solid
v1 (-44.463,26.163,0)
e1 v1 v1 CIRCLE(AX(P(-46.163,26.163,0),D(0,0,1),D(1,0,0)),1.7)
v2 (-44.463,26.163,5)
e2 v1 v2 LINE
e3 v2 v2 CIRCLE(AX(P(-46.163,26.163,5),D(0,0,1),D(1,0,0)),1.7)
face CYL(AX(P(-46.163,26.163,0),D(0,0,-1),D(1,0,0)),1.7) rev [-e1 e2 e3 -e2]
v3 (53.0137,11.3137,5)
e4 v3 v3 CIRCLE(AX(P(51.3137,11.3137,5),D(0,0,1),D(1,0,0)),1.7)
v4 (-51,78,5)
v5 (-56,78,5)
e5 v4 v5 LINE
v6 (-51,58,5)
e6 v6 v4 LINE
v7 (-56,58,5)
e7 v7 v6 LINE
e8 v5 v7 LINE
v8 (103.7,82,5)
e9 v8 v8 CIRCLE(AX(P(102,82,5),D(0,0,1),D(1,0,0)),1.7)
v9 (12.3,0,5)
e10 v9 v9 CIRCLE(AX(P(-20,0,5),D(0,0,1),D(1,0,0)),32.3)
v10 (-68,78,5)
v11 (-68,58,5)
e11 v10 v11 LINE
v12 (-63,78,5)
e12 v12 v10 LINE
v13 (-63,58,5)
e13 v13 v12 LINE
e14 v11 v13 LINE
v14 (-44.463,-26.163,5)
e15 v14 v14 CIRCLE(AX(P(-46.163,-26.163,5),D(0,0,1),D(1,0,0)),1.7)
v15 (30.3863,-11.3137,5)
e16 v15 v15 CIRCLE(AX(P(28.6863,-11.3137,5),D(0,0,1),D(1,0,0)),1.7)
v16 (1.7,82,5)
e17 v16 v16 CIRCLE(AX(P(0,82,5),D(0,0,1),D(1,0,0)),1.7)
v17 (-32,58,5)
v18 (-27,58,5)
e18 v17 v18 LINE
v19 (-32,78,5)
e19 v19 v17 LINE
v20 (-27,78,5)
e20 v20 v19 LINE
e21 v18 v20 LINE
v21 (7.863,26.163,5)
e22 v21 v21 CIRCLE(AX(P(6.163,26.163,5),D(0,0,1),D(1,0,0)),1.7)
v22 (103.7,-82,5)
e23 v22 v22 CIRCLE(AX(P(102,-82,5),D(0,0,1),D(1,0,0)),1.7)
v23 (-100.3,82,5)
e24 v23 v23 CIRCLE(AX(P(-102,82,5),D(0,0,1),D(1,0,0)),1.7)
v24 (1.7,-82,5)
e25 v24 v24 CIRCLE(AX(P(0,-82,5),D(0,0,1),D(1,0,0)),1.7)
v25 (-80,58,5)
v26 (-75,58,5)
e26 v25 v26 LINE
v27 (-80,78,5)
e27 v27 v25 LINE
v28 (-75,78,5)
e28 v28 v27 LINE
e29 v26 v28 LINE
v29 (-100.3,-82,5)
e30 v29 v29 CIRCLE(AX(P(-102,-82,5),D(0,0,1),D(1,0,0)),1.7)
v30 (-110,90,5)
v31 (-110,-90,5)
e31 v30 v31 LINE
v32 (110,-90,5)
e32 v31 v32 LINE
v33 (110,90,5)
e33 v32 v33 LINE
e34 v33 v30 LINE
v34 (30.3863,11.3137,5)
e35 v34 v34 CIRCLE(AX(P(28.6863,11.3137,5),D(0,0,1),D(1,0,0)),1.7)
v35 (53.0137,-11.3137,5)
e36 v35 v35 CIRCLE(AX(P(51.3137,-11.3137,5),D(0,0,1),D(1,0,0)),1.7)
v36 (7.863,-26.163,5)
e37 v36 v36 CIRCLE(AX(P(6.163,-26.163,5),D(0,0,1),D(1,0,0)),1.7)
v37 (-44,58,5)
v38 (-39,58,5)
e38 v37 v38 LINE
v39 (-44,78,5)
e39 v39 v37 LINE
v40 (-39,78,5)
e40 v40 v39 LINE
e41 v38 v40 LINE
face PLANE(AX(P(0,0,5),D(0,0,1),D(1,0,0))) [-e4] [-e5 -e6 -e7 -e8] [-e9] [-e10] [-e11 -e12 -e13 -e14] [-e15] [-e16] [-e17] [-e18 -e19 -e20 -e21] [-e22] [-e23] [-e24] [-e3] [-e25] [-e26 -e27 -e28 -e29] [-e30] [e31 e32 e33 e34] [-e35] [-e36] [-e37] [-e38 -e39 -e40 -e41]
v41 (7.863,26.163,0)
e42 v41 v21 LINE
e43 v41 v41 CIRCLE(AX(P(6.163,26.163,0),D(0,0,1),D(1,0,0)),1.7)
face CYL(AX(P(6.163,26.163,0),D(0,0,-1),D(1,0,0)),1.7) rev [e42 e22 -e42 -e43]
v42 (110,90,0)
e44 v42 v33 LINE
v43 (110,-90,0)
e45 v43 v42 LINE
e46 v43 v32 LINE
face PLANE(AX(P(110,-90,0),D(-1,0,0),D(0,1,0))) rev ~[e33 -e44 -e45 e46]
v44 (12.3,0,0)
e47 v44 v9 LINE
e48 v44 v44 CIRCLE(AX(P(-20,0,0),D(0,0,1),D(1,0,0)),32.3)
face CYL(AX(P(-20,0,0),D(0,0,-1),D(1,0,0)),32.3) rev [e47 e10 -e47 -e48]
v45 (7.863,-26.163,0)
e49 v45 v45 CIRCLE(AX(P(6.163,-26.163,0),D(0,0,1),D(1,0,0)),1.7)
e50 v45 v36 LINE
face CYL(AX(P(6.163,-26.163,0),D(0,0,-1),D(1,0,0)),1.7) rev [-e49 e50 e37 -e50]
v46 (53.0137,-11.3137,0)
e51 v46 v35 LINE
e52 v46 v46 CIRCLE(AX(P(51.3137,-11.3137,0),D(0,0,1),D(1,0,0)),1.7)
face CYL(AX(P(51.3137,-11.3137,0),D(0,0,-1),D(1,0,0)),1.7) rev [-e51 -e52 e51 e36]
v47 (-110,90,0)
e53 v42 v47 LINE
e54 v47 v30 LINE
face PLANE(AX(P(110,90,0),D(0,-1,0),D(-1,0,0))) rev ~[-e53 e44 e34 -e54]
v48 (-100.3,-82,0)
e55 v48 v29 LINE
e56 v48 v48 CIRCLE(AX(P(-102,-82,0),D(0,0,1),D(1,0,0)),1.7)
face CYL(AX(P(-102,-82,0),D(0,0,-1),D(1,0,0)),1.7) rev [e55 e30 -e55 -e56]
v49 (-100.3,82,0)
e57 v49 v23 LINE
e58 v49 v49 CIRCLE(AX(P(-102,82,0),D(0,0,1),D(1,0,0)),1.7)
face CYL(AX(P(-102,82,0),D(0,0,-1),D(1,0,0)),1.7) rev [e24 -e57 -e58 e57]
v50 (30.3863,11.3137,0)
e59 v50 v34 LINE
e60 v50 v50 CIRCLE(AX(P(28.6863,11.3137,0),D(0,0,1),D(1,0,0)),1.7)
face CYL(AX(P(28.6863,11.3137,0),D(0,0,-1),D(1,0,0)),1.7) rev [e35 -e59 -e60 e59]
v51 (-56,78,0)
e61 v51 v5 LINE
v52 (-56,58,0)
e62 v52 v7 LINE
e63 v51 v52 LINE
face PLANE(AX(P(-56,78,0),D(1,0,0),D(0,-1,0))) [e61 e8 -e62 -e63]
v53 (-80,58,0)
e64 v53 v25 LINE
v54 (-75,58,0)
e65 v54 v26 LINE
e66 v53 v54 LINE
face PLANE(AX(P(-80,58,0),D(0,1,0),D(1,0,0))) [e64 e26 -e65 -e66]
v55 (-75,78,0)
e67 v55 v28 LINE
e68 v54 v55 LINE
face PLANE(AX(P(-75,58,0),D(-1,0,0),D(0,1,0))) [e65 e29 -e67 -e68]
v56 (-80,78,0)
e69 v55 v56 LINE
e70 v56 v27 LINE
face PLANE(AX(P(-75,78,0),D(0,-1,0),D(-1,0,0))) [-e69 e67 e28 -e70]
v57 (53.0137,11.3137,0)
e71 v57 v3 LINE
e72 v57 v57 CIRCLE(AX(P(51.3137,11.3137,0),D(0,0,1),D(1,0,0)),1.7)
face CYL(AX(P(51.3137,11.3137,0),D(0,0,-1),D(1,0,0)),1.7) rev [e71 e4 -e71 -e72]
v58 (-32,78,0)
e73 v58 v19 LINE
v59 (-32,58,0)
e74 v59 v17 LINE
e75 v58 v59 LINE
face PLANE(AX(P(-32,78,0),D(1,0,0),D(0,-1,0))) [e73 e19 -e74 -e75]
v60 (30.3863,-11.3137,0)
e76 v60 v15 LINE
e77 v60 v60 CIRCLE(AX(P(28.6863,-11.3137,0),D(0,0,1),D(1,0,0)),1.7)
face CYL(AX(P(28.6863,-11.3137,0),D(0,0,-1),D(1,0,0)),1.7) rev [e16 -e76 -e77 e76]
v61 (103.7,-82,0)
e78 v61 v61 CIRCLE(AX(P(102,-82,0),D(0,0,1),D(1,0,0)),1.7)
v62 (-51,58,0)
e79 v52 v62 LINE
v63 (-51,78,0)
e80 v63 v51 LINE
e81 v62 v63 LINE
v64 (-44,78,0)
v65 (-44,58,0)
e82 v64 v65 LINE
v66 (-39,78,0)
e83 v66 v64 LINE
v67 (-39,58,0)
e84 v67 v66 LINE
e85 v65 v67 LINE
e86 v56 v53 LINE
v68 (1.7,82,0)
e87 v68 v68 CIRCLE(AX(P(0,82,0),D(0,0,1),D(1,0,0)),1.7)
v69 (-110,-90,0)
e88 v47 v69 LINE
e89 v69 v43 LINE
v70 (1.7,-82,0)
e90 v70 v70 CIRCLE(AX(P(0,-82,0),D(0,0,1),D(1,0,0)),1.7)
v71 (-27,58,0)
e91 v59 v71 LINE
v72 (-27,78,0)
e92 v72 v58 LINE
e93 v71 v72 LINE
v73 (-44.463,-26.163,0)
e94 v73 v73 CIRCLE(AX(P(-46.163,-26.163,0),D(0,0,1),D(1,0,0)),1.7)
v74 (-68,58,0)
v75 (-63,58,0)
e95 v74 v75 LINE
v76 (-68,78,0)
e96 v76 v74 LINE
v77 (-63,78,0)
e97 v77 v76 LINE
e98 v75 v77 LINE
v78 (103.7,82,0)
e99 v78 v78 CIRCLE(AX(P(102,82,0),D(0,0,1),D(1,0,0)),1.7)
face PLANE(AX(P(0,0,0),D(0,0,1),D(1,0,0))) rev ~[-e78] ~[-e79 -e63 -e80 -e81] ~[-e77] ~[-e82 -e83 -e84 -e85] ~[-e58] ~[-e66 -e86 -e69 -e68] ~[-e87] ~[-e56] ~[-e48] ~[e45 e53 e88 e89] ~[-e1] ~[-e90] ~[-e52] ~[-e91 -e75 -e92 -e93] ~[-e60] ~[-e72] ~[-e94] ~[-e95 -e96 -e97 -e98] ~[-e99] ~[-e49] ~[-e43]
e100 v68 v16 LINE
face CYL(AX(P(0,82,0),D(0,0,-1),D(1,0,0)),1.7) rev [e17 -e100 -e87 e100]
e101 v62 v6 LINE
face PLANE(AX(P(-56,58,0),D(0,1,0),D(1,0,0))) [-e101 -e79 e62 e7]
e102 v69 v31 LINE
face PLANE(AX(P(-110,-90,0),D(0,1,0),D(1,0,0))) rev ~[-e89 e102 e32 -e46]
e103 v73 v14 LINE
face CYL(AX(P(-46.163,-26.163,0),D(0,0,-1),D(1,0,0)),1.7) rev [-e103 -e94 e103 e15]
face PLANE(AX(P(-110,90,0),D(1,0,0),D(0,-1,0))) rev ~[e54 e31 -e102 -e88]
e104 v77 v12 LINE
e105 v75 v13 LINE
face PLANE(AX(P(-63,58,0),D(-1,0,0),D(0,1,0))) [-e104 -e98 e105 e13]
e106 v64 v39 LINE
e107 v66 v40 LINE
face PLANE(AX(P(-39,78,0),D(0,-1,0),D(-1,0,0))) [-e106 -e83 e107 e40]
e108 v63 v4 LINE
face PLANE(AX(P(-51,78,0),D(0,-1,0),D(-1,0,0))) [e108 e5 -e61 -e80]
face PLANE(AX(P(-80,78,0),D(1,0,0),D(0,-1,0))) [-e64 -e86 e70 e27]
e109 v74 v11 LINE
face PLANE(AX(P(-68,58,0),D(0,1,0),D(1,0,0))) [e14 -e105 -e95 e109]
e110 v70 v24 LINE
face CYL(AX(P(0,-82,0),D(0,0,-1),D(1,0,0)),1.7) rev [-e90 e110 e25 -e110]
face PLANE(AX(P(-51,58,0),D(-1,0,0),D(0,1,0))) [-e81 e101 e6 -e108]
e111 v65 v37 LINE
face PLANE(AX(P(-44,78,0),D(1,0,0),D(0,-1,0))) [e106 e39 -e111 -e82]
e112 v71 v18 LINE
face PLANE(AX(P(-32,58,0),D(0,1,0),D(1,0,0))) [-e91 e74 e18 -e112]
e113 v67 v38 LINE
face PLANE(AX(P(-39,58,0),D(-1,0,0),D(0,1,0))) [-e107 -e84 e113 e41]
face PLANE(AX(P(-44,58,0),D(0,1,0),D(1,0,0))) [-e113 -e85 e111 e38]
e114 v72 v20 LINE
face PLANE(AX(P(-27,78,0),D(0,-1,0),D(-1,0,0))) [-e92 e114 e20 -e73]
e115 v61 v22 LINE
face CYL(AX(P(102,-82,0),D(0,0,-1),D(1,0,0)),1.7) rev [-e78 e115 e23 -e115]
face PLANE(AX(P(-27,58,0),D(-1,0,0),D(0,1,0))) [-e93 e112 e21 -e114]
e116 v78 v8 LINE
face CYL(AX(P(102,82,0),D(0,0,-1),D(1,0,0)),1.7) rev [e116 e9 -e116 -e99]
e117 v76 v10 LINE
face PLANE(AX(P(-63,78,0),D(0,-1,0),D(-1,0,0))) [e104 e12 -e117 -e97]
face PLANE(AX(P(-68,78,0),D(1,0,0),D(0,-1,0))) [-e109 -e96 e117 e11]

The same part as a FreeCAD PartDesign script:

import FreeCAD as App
import Part
import Sketcher
from FreeCAD import Vector
Q = App.Units.Quantity


def add_polygon(sketch, points):
    """Adds a closed chain of lines whose ends are joined by coincident constraints."""
    first, n = sketch.GeometryCount, len(points)
    for a, b in zip(points, points[1:] + points[:1]):
        sketch.addGeometry(Part.LineSegment(App.Vector(*a, 0), App.Vector(*b, 0)), False)
    for i in range(n):
        sketch.addConstraint(Sketcher.Constraint("Coincident", first + i, 2, first + (i + 1) % n, 1))

doc = App.newDocument("Part")
body = doc.addObject("PartDesign::Body", "Body")

sketch1 = doc.addObject("Sketcher::SketchObject", "Sketch")
body.addObject(sketch1)
sketch1.AttachmentSupport = (doc.XY_Plane, [""])
sketch1.MapMode = "FlatFace"
add_polygon(sketch1, [(-110, 90), (-110, -90), (110, -90), (110, 90)])
sketch1.addGeometry(Part.Circle(Vector(-102, -82, 0), Vector(0, 0, 1), 1.7), False)
sketch1.addGeometry(Part.Circle(Vector(-46.163, -26.163, 0), Vector(0, 0, 1), 1.7), False)
sketch1.addGeometry(Part.Circle(Vector(0, -82, 0), Vector(0, 0, 1), 1.7), False)
sketch1.addGeometry(Part.Circle(Vector(102, -82, 0), Vector(0, 0, 1), 1.7), False)
sketch1.addGeometry(Part.Circle(Vector(6.163, -26.163, 0), Vector(0, 0, 1), 1.7), False)
sketch1.addGeometry(Part.Circle(Vector(28.6863, -11.3137, 0), Vector(0, 0, 1), 1.7), False)
sketch1.addGeometry(Part.Circle(Vector(51.3137, -11.3137, 0), Vector(0, 0, 1), 1.7), False)
sketch1.addGeometry(Part.Circle(Vector(-20, 0, 0), Vector(0, 0, 1), 32.3), False)
sketch1.addGeometry(Part.Circle(Vector(-46.163, 26.163, 0), Vector(0, 0, 1), 1.7), False)
sketch1.addGeometry(Part.Circle(Vector(-102, 82, 0), Vector(0, 0, 1), 1.7), False)
add_polygon(sketch1, [(-75, 58), (-80, 58), (-80, 78), (-75, 78)])
add_polygon(sketch1, [(-63, 58), (-68, 58), (-68, 78), (-63, 78)])
add_polygon(sketch1, [(-51, 58), (-56, 58), (-56, 78), (-51, 78)])
add_polygon(sketch1, [(-39, 58), (-44, 58), (-44, 78), (-39, 78)])
add_polygon(sketch1, [(-27, 58), (-32, 58), (-32, 78), (-27, 78)])
sketch1.addGeometry(Part.Circle(Vector(28.6863, 11.3137, 0), Vector(0, 0, 1), 1.7), False)
sketch1.addGeometry(Part.Circle(Vector(51.3137, 11.3137, 0), Vector(0, 0, 1), 1.7), False)
sketch1.addGeometry(Part.Circle(Vector(6.163, 26.163, 0), Vector(0, 0, 1), 1.7), False)
sketch1.addGeometry(Part.Circle(Vector(0, 82, 0), Vector(0, 0, 1), 1.7), False)
sketch1.addGeometry(Part.Circle(Vector(102, 82, 0), Vector(0, 0, 1), 1.7), False)
sketch1.addConstraint([
    Sketcher.Constraint("Vertical", 0),
    Sketcher.Constraint("Horizontal", 1),
    Sketcher.Constraint("Vertical", 2),
    Sketcher.Constraint("Horizontal", 3),
    Sketcher.Constraint("Horizontal", 14),
    Sketcher.Constraint("Vertical", 15),
    Sketcher.Constraint("Horizontal", 16),
    Sketcher.Constraint("Vertical", 17),
    Sketcher.Constraint("Horizontal", 18),
    Sketcher.Constraint("Vertical", 19),
    Sketcher.Constraint("Horizontal", 20),
    Sketcher.Constraint("Vertical", 21),
    Sketcher.Constraint("Horizontal", 22),
    Sketcher.Constraint("Vertical", 23),
    Sketcher.Constraint("Horizontal", 24),
    Sketcher.Constraint("Vertical", 25),
    Sketcher.Constraint("Horizontal", 26),
    Sketcher.Constraint("Vertical", 27),
    Sketcher.Constraint("Horizontal", 28),
    Sketcher.Constraint("Vertical", 29),
    Sketcher.Constraint("Horizontal", 30),
    Sketcher.Constraint("Vertical", 31),
    Sketcher.Constraint("Horizontal", 32),
    Sketcher.Constraint("Vertical", 33),
    Sketcher.Constraint("Equal", 4, 5),
    Sketcher.Constraint("Equal", 5, 6),
    Sketcher.Constraint("Equal", 6, 7),
    Sketcher.Constraint("Equal", 7, 8),
    Sketcher.Constraint("Equal", 8, 9),
    Sketcher.Constraint("Equal", 9, 10),
    Sketcher.Constraint("Equal", 10, 12),
    Sketcher.Constraint("Equal", 12, 13),
    Sketcher.Constraint("Equal", 13, 34),
    Sketcher.Constraint("Equal", 34, 35),
    Sketcher.Constraint("Equal", 35, 36),
    Sketcher.Constraint("Equal", 36, 37),
    Sketcher.Constraint("Equal", 37, 38),
    Sketcher.Constraint("Symmetric", 7, 3, 13, 3, -1, 1),
    Sketcher.Constraint("Symmetric", 6, 3, 37, 3, -1, 1),
    Sketcher.Constraint("Symmetric", 4, 3, 38, 3, -1, 1),
    Sketcher.Constraint("Symmetric", 0, 2, 2, 2, -1, 1),
    Sketcher.Constraint("Symmetric", 4, 3, 7, 3, -2),
    Sketcher.Constraint("Symmetric", 5, 3, 12, 3, -1),
    Sketcher.Constraint("Symmetric", 9, 3, 34, 3, -1),
    Sketcher.Constraint("Symmetric", 10, 3, 35, 3, -1),
    Sketcher.Constraint("Symmetric", 8, 3, 36, 3, -1),
    Sketcher.Constraint("PointOnObject", 6, 3, -2),
    Sketcher.Constraint("PointOnObject", 11, 3, -1),
    Sketcher.Constraint("Horizontal", 4, 3, 6, 3),
    Sketcher.Constraint("Horizontal", 5, 3, 8, 3),
    Sketcher.Constraint("Horizontal", 9, 3, 10, 3),
    Sketcher.Constraint("Horizontal", 17, 2, 18, 2),
    Sketcher.Constraint("Horizontal", 16, 2, 19, 2),
    Sketcher.Constraint("Horizontal", 21, 2, 22, 2),
    Sketcher.Constraint("Horizontal", 20, 2, 23, 2),
    Sketcher.Constraint("Horizontal", 25, 2, 26, 2),
    Sketcher.Constraint("Horizontal", 24, 2, 27, 2),
    Sketcher.Constraint("Horizontal", 29, 2, 30, 2),
    Sketcher.Constraint("Horizontal", 28, 2, 31, 2),
    Sketcher.Constraint("Equal", 16, 18),
    Sketcher.Constraint("Equal", 20, 22),
    Sketcher.Constraint("Equal", 24, 26),
    Sketcher.Constraint("Equal", 28, 30),
    Sketcher.Constraint("Diameter", 4, Q("3.4 mm")),
    Sketcher.Constraint("Diameter", 11, Q("64.6 mm")),
    Sketcher.Constraint("DistanceX", 1, 1, 1, 2, Q("220 mm")),
    Sketcher.Constraint("DistanceX", 14, 2, 14, 1, Q("5 mm")),
    Sketcher.Constraint("DistanceY", 0, 2, 0, 1, Q("180 mm")),
    Sketcher.Constraint("DistanceY", 15, 1, 15, 2, Q("20 mm")),
    Sketcher.Constraint("DistanceX", 4, 3, -1, 1, Q("102 mm")),
    Sketcher.Constraint("DistanceY", 4, 3, -1, 1, Q("82 mm")),
    Sketcher.Constraint("DistanceX", 11, 3, -1, 1, Q("20 mm")),
    Sketcher.Constraint("DistanceX", 14, 2, -1, 1, Q("80 mm")),
    Sketcher.Constraint("DistanceY", -1, 1, 14, 2, Q("58 mm")),
    Sketcher.Constraint("DistanceX", 18, 2, -1, 1, Q("68 mm")),
    Sketcher.Constraint("DistanceX", 22, 2, -1, 1, Q("56 mm")),
    Sketcher.Constraint("DistanceX", 26, 2, -1, 1, Q("44 mm")),
    Sketcher.Constraint("DistanceX", 30, 2, -1, 1, Q("32 mm")),
    Sketcher.Constraint("DistanceX", 5, 3, -1, 1, Q("46.163 mm")),
    Sketcher.Constraint("DistanceY", 5, 3, -1, 1, Q("26.163 mm")),
    Sketcher.Constraint("DistanceX", -1, 1, 8, 3, Q("6.163 mm")),
    Sketcher.Constraint("DistanceX", -1, 1, 9, 3, Q("28.6863 mm")),
    Sketcher.Constraint("DistanceY", 9, 3, -1, 1, Q("11.3137 mm")),
    Sketcher.Constraint("DistanceX", -1, 1, 10, 3, Q("51.3137 mm")),
])
pad1 = doc.addObject("PartDesign::Pad", "Pad")
body.addObject(pad1)
pad1.Profile = sketch1
pad1.Length = 5

doc.recompute()
